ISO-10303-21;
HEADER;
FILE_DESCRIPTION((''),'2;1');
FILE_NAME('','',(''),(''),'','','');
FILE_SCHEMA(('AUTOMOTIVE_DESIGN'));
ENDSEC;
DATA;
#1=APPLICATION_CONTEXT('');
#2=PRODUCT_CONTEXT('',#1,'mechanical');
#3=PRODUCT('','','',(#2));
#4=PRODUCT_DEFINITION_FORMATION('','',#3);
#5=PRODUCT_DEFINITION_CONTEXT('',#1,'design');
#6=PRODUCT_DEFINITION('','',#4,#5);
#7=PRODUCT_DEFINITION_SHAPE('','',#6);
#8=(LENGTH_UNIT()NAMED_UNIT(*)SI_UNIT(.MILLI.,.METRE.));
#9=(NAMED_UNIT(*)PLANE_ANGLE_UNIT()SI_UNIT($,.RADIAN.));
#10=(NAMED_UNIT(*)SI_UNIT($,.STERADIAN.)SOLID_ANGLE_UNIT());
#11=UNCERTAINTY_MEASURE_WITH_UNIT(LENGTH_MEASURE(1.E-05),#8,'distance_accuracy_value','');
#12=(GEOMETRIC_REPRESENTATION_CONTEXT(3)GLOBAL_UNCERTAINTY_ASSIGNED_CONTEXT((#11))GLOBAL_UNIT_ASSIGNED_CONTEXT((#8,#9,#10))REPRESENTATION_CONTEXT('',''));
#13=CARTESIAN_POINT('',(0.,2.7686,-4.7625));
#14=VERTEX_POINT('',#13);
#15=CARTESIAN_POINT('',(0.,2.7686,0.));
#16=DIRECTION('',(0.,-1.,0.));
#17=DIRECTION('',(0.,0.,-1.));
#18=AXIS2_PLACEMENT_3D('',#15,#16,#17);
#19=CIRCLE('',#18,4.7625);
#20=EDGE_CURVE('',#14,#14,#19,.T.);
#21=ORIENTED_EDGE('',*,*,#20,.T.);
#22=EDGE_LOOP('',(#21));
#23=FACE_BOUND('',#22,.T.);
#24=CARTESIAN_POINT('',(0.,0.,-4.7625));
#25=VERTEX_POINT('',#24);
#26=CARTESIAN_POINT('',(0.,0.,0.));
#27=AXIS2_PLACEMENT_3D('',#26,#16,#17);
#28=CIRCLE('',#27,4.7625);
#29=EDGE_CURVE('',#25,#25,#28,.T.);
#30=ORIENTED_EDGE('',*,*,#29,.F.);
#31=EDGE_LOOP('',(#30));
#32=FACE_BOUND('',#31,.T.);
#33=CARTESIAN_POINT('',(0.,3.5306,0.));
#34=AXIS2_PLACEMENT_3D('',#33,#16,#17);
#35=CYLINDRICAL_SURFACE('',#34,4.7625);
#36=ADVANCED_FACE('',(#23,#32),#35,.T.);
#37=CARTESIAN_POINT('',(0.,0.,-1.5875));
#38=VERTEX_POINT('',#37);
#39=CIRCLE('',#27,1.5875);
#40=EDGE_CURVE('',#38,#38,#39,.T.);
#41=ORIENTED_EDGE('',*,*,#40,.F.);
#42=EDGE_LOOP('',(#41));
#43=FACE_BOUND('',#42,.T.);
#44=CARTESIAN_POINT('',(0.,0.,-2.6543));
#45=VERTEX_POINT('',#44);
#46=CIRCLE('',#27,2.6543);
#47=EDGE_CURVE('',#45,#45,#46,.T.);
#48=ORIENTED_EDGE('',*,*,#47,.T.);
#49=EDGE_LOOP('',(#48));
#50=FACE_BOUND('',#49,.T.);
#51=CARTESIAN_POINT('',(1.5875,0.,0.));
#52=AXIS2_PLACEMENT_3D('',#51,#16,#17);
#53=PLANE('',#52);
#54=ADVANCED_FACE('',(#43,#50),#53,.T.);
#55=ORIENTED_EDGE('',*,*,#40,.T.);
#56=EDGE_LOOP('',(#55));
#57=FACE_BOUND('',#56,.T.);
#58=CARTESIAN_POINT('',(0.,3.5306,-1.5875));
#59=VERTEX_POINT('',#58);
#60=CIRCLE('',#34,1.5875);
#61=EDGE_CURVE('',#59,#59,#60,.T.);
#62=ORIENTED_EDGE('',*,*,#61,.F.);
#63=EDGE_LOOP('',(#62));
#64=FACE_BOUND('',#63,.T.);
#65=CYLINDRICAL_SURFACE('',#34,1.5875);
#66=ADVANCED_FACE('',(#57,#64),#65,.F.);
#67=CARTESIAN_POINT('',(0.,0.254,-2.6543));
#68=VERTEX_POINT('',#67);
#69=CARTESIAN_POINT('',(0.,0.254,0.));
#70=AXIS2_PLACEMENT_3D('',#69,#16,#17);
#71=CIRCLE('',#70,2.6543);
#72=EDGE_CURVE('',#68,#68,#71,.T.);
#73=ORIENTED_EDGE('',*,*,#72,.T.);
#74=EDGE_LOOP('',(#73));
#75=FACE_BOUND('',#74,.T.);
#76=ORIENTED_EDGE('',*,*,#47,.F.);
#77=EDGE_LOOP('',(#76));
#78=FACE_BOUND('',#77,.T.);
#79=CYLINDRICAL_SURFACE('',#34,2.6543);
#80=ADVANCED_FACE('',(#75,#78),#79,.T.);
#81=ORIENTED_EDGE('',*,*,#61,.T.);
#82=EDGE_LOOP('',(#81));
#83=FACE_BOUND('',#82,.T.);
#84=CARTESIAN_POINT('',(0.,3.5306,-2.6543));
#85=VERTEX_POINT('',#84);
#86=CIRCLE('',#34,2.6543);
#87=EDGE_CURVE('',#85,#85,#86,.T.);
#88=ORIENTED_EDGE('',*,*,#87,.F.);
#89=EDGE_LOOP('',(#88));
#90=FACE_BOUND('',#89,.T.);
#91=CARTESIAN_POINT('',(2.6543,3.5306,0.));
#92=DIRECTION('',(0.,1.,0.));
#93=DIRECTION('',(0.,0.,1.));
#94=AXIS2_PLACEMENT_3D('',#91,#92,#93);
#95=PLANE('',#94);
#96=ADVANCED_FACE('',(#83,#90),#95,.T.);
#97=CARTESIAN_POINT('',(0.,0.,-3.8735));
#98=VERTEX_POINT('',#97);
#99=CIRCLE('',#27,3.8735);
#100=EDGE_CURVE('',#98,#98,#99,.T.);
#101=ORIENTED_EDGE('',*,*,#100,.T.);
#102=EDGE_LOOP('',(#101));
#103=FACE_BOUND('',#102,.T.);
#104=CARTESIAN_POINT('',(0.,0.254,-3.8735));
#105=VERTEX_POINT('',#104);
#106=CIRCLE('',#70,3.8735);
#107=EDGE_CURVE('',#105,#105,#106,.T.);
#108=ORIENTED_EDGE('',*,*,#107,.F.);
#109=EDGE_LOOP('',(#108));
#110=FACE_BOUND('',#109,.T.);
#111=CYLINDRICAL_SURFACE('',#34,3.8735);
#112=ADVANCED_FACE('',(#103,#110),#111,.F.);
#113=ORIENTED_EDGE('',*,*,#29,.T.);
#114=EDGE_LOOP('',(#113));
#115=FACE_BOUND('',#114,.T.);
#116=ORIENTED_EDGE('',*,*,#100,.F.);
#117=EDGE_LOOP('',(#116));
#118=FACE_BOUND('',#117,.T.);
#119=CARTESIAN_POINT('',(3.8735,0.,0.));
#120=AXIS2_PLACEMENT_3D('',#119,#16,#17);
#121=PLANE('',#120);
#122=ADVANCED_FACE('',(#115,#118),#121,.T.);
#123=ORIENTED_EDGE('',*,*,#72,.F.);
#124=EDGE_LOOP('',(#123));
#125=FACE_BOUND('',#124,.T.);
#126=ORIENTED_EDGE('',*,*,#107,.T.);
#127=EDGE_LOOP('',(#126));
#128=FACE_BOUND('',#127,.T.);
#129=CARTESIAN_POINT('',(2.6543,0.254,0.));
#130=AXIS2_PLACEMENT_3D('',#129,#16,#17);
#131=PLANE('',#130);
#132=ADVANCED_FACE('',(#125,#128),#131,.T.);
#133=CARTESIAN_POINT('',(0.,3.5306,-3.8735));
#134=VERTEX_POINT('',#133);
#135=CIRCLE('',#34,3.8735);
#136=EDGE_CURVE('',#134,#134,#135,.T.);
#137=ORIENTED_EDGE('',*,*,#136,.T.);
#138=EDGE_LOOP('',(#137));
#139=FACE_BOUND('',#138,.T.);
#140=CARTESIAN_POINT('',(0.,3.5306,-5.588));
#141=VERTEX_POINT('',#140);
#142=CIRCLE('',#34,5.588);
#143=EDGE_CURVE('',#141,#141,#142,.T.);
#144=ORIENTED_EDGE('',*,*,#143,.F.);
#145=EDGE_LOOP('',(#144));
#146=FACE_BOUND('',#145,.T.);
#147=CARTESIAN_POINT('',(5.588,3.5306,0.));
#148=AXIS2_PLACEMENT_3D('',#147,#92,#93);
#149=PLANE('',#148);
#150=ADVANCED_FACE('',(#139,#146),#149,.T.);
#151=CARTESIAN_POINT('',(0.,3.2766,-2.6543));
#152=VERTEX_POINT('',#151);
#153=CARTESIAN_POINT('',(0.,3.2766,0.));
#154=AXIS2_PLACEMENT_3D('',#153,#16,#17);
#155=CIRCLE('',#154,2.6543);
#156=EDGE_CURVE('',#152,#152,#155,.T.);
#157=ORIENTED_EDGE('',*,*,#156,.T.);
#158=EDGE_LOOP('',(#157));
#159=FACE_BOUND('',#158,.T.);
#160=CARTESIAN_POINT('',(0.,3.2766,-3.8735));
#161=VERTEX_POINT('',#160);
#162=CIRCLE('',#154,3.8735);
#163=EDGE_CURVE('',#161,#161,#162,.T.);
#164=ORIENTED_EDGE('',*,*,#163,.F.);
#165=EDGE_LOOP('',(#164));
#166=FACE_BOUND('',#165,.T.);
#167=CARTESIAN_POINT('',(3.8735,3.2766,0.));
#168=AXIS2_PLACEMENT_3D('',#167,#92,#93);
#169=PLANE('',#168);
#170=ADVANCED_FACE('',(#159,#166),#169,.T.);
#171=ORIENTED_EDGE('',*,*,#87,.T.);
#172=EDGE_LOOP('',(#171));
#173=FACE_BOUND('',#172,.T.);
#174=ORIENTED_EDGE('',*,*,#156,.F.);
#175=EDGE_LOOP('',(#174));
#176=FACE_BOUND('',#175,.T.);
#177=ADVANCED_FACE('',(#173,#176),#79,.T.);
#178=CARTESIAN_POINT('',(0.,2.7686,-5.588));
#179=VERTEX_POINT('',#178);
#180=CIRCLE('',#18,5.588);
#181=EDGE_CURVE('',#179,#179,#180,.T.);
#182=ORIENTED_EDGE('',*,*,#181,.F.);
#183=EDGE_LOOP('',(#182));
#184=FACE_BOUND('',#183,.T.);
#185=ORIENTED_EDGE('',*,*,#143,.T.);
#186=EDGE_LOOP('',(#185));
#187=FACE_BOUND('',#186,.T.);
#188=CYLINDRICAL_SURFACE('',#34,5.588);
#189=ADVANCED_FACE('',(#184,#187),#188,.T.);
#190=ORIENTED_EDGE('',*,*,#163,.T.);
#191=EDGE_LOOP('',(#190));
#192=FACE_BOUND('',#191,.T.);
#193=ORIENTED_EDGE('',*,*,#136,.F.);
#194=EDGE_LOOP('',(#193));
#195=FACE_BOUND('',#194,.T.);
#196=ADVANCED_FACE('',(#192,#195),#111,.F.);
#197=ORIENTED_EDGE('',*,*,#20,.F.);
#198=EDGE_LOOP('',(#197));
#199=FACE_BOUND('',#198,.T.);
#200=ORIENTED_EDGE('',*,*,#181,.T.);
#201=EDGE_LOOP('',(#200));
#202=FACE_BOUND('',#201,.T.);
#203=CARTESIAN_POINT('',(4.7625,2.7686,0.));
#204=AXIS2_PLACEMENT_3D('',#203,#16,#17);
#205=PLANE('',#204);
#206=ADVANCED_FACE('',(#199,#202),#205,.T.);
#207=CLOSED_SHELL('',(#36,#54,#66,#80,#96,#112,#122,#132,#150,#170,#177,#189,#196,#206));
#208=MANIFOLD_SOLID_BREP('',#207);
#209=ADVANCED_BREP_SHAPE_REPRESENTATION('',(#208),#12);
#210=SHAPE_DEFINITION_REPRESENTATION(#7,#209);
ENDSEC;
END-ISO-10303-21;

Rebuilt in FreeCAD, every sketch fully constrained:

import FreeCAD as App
import Part
import Sketcher
Q = App.Units.Quantity


def add_polygon(sketch, points):
    """Adds a closed chain of lines whose ends are joined by coincident constraints."""
    first, n = sketch.GeometryCount, len(points)
    for a, b in zip(points, points[1:] + points[:1]):
        sketch.addGeometry(Part.LineSegment(App.Vector(*a, 0), App.Vector(*b, 0)), False)
    for i in range(n):
        sketch.addConstraint(Sketcher.Constraint("Coincident", first + i, 2, first + (i + 1) % n, 1))

doc = App.newDocument("Part")
params = doc.addObject("Spreadsheet::Sheet", "Params")
for row, (alias, value) in enumerate([
    ("sketch1_height", "0.01 in"),
    ("sketch1_height2", "0.03 in"),
    ("sketch1_width", "0.048 in"),
    ("sketch1_width2", "0.035 in"),
    ("sketch1_width3", "0.042 in"),
    ("revolution_angle", "360 deg"),
], start=1):
    params.set(f"A{row}", alias)
    params.set(f"B{row}", "=" + value)
    params.setAlias(f"B{row}", alias)

body = doc.addObject("PartDesign::Body", "Body")

# Sketch on XY plane
sketch1 = body.newObject("Sketcher::SketchObject", "Sketch")
sketch1.AttachmentSupport = (doc.getObject("XY_Plane"), [""])
sketch1.MapMode = "FlatFace"
add_polygon(sketch1, [(2.6543, 0), (2.6543, 0.254), (3.8735, 0.254), (3.8735, 0), (4.7625, 0), (4.7625, 2.7686), (5.588, 2.7686), (5.588, 3.5306), (3.8735, 3.5306), (3.8735, 3.2766), (2.6543, 3.2766), (2.6543, 3.5306), (1.5875, 3.5306), (1.5875, 0)])  # lines 0-13
sketch1.addConstraint(Sketcher.Constraint("Vertical", 0))
sketch1.addConstraint(Sketcher.Constraint("Horizontal", 1))
sketch1.addConstraint(Sketcher.Constraint("Vertical", 2))
sketch1.addConstraint(Sketcher.Constraint("Horizontal", 3))
sketch1.addConstraint(Sketcher.Constraint("Vertical", 4))
sketch1.addConstraint(Sketcher.Constraint("Horizontal", 5))
sketch1.addConstraint(Sketcher.Constraint("Vertical", 6))
sketch1.addConstraint(Sketcher.Constraint("Horizontal", 7))
sketch1.addConstraint(Sketcher.Constraint("Vertical", 8))
sketch1.addConstraint(Sketcher.Constraint("Horizontal", 9))
sketch1.addConstraint(Sketcher.Constraint("Vertical", 10))
sketch1.addConstraint(Sketcher.Constraint("Horizontal", 11))
sketch1.addConstraint(Sketcher.Constraint("Vertical", 12))
sketch1.addConstraint(Sketcher.Constraint("Horizontal", 13))
sketch1.addConstraint(Sketcher.Constraint("PointOnObject", 2, 2, -1))
sketch1.addConstraint(Sketcher.Constraint("PointOnObject", 12, 2, -1))
sketch1.addConstraint(Sketcher.Constraint("Horizontal", 7, 2, 10, 2))
sketch1.addConstraint(Sketcher.Constraint("Vertical", 2, 2, 7, 2))
sketch1.addConstraint(Sketcher.Constraint("Vertical", 0, 2, 9, 2))
sketch1.addConstraint(Sketcher.Constraint("Equal", 2, 8))
sketch1.addConstraint(Sketcher.Constraint("DistanceY", 0, 1, 0, 2, Q("0.01 in")))
sketch1.addConstraint(Sketcher.Constraint("DistanceY", 6, 1, 6, 2, Q("0.03 in")))
sketch1.addConstraint(Sketcher.Constraint("DistanceX", 1, 1, 1, 2, Q("0.048 in")))
sketch1.addConstraint(Sketcher.Constraint("DistanceX", 3, 1, 3, 2, Q("0.035 in")))
sketch1.addConstraint(Sketcher.Constraint("DistanceX", 11, 2, 11, 1, Q("0.042 in")))
sketch1.addConstraint(Sketcher.Constraint("DistanceY", 4, 1, 4, 2, Q("0.109 in")))
sketch1.addConstraint(Sketcher.Constraint("DistanceX", -1, 1, 5, 2, Q("0.22 in")))
sketch1.addConstraint(Sketcher.Constraint("DistanceX", 5, 1, 5, 2, Q("0.0325 in")))
sketch1.setExpression("Constraints[34]", "Params.sketch1_height")
sketch1.setExpression("Constraints[35]", "Params.sketch1_height2")
sketch1.setExpression("Constraints[36]", "Params.sketch1_width")
sketch1.setExpression("Constraints[37]", "Params.sketch1_width2")
sketch1.setExpression("Constraints[38]", "Params.sketch1_width3")
revolution = body.newObject("PartDesign::Revolution", "Revolution")
revolution.Profile = sketch1
revolution.ReferenceAxis = (sketch1, ["V_Axis"])
revolution.setExpression("Angle", "Params.revolution_angle")

doc.recompute()
